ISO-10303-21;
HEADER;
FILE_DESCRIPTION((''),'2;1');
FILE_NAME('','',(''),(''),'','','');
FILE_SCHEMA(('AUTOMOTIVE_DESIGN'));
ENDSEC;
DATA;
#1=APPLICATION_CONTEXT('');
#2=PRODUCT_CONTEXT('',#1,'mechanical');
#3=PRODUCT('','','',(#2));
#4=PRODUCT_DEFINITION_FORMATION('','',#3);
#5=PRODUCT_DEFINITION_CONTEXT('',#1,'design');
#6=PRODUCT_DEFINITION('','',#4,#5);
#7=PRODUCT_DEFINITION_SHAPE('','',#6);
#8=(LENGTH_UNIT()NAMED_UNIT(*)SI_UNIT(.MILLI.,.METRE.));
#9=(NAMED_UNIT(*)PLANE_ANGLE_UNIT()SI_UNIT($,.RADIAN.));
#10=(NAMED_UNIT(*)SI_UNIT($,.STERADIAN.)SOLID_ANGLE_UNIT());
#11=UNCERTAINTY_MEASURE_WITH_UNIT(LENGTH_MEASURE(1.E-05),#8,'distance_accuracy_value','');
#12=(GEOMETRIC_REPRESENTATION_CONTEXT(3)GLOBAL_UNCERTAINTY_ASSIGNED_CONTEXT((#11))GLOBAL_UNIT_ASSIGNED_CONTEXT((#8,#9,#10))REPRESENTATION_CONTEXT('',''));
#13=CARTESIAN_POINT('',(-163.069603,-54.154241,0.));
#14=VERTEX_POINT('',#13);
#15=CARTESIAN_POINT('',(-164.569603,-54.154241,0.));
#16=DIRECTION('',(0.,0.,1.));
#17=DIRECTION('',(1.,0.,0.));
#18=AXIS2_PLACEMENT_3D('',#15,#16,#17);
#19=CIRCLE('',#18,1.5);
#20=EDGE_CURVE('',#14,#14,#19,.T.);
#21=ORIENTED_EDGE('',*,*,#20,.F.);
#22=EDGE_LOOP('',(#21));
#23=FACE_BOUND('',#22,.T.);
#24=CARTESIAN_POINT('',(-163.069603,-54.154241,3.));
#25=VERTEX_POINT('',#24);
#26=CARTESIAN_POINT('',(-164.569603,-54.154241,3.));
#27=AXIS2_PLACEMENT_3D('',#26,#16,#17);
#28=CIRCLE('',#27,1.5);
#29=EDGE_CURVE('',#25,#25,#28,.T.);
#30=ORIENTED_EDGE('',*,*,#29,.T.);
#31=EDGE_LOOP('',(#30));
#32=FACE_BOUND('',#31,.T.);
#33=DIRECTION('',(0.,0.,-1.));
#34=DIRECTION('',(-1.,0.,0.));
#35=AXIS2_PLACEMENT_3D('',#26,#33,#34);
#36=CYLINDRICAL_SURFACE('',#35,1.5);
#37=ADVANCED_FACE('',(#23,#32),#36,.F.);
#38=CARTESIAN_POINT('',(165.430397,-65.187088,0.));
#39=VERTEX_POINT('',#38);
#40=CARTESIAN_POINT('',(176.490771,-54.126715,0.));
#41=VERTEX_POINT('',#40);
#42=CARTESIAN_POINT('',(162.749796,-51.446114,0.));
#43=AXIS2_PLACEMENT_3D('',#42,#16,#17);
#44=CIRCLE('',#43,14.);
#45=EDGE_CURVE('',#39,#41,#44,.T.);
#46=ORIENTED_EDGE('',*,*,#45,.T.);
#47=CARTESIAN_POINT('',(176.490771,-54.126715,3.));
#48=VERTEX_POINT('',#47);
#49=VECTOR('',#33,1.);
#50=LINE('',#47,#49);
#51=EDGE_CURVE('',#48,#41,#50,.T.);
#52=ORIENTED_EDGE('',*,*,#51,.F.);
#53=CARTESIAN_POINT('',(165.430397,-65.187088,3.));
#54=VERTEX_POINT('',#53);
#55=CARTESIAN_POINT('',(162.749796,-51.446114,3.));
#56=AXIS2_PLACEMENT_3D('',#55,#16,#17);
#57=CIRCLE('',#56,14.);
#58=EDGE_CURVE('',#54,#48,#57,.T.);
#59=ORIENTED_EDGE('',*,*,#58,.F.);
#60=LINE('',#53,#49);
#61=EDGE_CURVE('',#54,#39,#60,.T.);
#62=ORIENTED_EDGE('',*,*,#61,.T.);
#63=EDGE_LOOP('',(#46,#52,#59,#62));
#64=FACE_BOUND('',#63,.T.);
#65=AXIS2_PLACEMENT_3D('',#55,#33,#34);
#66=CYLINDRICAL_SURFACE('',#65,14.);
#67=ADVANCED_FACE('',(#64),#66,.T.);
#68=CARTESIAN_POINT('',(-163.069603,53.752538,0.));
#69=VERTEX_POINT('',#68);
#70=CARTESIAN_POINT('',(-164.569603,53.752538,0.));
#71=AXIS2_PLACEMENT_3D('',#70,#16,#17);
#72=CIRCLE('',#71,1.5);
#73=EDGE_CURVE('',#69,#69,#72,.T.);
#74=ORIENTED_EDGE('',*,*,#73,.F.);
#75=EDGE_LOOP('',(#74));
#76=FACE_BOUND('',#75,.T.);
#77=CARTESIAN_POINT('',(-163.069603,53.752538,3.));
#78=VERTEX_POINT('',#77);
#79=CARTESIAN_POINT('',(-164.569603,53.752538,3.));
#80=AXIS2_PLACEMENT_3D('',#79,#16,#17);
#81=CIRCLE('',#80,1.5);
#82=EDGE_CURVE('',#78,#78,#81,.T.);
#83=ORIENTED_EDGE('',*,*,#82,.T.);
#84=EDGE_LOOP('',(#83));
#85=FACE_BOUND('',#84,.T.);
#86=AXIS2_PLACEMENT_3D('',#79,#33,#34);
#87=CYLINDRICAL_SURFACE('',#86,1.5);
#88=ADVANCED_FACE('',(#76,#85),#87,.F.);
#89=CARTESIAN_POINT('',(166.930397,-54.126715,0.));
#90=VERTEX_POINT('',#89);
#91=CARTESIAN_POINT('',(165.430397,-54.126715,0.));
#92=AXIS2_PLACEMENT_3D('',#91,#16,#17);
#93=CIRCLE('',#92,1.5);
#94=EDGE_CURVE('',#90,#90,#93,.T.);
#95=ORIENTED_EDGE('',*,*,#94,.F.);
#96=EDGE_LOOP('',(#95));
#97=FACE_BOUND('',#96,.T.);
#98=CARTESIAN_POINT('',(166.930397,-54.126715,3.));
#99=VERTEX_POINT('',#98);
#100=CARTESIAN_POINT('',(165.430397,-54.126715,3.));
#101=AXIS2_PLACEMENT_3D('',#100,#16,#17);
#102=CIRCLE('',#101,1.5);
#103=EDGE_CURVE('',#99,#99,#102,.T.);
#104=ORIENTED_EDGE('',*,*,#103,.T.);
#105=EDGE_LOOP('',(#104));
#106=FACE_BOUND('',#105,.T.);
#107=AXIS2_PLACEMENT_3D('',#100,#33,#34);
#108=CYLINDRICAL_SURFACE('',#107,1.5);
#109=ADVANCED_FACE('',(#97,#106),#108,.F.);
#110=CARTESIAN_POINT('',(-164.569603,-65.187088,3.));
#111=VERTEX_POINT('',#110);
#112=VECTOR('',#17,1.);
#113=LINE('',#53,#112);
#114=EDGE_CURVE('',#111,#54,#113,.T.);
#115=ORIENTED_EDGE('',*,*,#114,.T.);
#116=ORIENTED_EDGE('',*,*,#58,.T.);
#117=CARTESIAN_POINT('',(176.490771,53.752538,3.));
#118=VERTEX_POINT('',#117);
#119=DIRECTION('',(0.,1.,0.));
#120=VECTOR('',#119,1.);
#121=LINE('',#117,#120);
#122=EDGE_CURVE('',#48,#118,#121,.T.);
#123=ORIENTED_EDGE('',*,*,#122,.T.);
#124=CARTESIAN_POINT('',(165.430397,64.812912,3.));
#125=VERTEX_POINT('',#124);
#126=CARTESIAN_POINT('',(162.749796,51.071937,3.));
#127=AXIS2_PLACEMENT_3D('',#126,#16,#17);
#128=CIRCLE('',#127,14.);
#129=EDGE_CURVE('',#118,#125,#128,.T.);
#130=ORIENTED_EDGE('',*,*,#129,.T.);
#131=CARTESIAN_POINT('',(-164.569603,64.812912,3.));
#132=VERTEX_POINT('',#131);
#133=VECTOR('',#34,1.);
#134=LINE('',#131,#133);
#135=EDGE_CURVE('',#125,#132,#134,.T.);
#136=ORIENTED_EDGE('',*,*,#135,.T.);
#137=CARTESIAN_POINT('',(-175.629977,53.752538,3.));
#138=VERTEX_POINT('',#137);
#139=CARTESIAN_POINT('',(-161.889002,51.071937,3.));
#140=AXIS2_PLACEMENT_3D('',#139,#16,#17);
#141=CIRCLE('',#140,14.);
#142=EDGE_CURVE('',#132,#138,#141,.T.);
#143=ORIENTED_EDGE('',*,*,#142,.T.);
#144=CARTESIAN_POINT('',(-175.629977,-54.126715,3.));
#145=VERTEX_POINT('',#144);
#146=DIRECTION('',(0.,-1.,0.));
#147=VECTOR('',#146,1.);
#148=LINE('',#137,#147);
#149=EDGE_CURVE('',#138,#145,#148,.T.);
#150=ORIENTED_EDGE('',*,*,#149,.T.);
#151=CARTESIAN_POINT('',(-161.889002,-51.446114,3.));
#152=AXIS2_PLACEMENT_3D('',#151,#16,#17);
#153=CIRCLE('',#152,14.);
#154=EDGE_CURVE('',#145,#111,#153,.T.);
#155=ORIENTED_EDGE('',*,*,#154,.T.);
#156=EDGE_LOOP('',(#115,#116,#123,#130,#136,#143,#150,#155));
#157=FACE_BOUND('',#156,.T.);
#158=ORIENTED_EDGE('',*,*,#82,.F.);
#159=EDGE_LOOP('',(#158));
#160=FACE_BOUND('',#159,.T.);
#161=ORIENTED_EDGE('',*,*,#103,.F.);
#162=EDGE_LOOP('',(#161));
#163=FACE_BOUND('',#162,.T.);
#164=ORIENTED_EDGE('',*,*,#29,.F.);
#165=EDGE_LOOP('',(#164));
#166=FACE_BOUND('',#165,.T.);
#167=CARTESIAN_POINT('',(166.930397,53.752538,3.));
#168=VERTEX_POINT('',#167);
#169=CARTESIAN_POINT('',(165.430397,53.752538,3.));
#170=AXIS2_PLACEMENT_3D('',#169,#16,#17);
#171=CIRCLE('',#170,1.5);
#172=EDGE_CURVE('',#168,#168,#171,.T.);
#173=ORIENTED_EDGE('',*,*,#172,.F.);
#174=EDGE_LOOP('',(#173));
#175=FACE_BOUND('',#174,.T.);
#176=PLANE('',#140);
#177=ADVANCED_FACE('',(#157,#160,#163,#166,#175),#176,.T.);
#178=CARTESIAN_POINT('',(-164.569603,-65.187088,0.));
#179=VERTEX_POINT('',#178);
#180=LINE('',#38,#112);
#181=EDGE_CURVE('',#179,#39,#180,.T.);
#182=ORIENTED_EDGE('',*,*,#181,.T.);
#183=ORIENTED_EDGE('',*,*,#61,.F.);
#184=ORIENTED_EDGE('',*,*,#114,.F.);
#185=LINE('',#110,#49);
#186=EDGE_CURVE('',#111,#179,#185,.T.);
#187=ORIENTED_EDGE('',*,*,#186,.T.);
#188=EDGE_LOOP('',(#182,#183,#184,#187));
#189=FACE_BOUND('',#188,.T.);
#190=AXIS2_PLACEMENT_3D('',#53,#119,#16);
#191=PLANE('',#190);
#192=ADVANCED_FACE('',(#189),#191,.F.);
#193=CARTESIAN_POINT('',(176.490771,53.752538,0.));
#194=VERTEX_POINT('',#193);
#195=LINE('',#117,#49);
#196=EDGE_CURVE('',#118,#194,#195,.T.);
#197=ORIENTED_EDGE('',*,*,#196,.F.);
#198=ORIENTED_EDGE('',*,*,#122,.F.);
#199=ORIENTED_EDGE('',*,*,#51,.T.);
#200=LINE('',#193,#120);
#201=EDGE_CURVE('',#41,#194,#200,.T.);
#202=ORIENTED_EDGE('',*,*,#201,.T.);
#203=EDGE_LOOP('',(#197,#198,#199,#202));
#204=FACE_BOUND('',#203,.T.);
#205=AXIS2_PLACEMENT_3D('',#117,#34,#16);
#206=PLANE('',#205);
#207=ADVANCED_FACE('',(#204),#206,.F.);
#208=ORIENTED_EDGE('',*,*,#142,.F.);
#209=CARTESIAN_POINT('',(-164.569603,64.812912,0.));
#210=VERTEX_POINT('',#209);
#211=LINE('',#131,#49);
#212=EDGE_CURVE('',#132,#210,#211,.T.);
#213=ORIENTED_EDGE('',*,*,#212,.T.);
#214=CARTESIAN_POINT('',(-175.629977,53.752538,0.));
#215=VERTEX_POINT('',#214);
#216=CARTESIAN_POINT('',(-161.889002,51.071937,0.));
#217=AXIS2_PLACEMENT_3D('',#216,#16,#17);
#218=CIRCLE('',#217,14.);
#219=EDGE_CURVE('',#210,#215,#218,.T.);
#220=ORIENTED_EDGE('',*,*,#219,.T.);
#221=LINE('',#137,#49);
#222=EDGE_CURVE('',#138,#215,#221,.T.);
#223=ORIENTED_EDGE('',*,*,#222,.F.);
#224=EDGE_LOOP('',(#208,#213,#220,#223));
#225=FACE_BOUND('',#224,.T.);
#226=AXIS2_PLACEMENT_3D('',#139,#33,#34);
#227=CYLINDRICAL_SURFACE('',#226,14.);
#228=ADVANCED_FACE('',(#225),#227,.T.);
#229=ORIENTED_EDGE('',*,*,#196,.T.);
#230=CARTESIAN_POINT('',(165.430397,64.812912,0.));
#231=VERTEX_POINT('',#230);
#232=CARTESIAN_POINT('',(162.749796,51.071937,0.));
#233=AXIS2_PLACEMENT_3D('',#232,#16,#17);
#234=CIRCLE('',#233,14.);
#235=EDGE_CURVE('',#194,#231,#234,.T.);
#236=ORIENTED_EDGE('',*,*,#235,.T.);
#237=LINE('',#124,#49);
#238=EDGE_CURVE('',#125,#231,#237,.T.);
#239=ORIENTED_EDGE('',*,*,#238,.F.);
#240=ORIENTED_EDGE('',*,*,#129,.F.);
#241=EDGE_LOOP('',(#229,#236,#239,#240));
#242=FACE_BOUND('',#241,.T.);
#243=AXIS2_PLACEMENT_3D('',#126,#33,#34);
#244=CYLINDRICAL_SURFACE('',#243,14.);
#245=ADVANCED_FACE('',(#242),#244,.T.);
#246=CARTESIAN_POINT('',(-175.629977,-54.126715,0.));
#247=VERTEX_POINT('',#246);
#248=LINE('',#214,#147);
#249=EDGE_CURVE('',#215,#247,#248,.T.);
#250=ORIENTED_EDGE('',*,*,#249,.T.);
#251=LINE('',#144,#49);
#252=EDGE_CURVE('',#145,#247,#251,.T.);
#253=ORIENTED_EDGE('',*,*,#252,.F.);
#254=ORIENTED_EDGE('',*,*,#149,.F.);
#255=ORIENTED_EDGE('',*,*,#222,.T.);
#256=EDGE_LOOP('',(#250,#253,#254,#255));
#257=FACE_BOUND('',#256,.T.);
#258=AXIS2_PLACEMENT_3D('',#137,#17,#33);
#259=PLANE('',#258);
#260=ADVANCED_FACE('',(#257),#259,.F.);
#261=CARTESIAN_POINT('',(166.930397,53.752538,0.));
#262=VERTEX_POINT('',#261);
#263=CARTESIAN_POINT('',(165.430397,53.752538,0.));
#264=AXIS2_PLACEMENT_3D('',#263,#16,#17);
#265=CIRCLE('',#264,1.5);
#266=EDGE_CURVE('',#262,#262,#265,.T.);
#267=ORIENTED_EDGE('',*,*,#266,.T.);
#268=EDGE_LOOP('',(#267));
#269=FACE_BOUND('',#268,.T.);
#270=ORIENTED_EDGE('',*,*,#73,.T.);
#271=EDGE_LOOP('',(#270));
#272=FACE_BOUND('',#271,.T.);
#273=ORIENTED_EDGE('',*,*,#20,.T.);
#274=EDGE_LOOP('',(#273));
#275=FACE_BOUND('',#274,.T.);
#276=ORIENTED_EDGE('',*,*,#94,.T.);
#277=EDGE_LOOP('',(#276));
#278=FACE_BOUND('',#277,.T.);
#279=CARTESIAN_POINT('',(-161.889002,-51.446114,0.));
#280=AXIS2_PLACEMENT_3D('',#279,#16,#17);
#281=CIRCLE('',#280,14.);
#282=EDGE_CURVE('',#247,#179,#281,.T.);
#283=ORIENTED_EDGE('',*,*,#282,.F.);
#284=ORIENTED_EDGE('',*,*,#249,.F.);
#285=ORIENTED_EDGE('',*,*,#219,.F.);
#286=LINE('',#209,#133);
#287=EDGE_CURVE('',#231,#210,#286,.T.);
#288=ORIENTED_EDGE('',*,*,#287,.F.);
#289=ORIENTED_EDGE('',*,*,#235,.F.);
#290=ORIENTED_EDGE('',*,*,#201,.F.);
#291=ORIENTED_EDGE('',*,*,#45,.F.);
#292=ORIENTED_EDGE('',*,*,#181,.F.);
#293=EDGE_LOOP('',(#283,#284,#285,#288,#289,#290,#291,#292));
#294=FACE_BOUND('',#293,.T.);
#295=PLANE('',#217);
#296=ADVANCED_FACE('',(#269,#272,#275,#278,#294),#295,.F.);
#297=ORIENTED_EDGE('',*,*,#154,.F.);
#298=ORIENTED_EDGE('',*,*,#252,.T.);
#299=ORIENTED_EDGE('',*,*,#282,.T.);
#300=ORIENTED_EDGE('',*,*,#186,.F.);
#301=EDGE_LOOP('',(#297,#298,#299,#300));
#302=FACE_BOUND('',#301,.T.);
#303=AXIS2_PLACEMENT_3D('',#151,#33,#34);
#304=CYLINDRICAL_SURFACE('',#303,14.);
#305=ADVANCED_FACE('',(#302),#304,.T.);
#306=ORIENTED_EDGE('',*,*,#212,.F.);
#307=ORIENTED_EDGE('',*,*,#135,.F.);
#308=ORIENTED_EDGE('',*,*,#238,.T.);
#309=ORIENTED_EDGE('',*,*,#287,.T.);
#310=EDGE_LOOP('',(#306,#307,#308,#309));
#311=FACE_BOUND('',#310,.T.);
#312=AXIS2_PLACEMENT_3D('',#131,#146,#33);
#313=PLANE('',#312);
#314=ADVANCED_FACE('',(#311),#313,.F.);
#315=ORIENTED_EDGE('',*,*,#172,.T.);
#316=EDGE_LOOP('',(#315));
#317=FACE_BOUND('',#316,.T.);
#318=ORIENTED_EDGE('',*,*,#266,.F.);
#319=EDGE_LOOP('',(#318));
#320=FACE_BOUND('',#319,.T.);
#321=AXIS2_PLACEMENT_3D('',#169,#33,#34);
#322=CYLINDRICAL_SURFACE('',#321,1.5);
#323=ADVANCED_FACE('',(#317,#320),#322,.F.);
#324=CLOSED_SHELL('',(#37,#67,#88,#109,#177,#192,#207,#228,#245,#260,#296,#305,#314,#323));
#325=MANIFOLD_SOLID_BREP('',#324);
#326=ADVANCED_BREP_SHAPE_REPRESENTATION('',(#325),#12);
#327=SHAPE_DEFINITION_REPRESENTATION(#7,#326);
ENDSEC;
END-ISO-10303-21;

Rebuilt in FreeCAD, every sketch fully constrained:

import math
import FreeCAD as App
import Part
import Sketcher
from FreeCAD import Vector

doc = App.newDocument("Part")
body = doc.addObject("PartDesign::Body", "Body")

# Sketch on XY plane
sketch1 = body.newObject("Sketcher::SketchObject", "Sketch")
sketch1.AttachmentSupport = (doc.getObject("XY_Plane"), [""])
sketch1.MapMode = "FlatFace"
sketch1.addGeometry([
    Part.LineSegment(Vector(-175.629977, 53.752538, 0), Vector(-175.629977, -54.126715, 0)),  # 0
    Part.ArcOfCircle(Part.Circle(Vector(-161.889002, -51.446114, 0), Vector(0, 0, 1), 14), math.radians(-168.961329), math.radians(-101.038671)),  # 1
    Part.LineSegment(Vector(-164.569603, -65.187088, 0), Vector(165.430397, -65.187088, 0)),  # 2
    Part.ArcOfCircle(Part.Circle(Vector(162.749796, -51.446114, 0), Vector(0, 0, 1), 14), math.radians(-78.961329), math.radians(-11.038671)),  # 3
    Part.LineSegment(Vector(176.490771, -54.126715, 0), Vector(176.490771, 53.752538, 0)),  # 4
    Part.ArcOfCircle(Part.Circle(Vector(162.749796, 51.071937, 0), Vector(0, 0, 1), 14), math.radians(11.038671), math.radians(78.961329)),  # 5
    Part.LineSegment(Vector(165.430397, 64.812912, 0), Vector(-164.569603, 64.812912, 0)),  # 6
    Part.ArcOfCircle(Part.Circle(Vector(-161.889002, 51.071937, 0), Vector(0, 0, 1), 14), math.radians(101.038671), math.radians(168.961329)),  # 7
    Part.Circle(Vector(-164.569603, -54.154241, 0), Vector(0, 0, 1), 1.5),  # 8
    Part.Circle(Vector(165.430397, -54.126715, 0), Vector(0, 0, 1), 1.5),  # 9
    Part.Circle(Vector(-164.569603, 53.752538, 0), Vector(0, 0, 1), 1.5),  # 10
    Part.Circle(Vector(165.430397, 53.752538, 0), Vector(0, 0, 1), 1.5),  # 11
], False)
sketch1.addConstraint([
    Sketcher.Constraint("Coincident", 0, 2, 1, 1),
    Sketcher.Constraint("Coincident", 1, 2, 2, 1),
    Sketcher.Constraint("Coincident", 2, 2, 3, 1),
    Sketcher.Constraint("Coincident", 3, 2, 4, 1),
    Sketcher.Constraint("Coincident", 4, 2, 5, 1),
    Sketcher.Constraint("Coincident", 5, 2, 6, 1),
    Sketcher.Constraint("Coincident", 6, 2, 7, 1),
    Sketcher.Constraint("Coincident", 7, 2, 0, 1),
    Sketcher.Constraint("Vertical", 0),
    Sketcher.Constraint("Horizontal", 2),
    Sketcher.Constraint("Vertical", 4),
    Sketcher.Constraint("Horizontal", 6),
    Sketcher.Constraint("Equal", 1, 3),
    Sketcher.Constraint("Equal", 3, 5),
    Sketcher.Constraint("Equal", 5, 7),
    Sketcher.Constraint("Equal", 8, 9),
    Sketcher.Constraint("Equal", 9, 10),
    Sketcher.Constraint("Equal", 10, 11),
    Sketcher.Constraint("Horizontal", 1, 3, 3, 3),
    Sketcher.Constraint("Horizontal", 5, 3, 7, 3),
    Sketcher.Constraint("Horizontal", 10, 3, 11, 3),
    Sketcher.Constraint("Horizontal", 9, 3, 0, 2),
    Sketcher.Constraint("Horizontal", 0, 2, 3, 2),
    Sketcher.Constraint("Horizontal", 11, 3, 4, 2),
    Sketcher.Constraint("Horizontal", 4, 2, 7, 2),
    Sketcher.Constraint("Vertical", 3, 3, 5, 3),
    Sketcher.Constraint("Vertical", 8, 3, 10, 3),
    Sketcher.Constraint("Vertical", 9, 3, 11, 3),
    Sketcher.Constraint("Vertical", 10, 3, 1, 2),
    Sketcher.Constraint("Vertical", 11, 3, 2, 2),
    Sketcher.Constraint("Vertical", 2, 2, 5, 2),
    Sketcher.Constraint("Diameter", 8, 3.0),
    Sketcher.Constraint("Radius", 1, 14.0),
    Sketcher.Constraint("DistanceX", 2, 1, 2, 2, 330.0),
    Sketcher.Constraint("DistanceX", 1, 3, 3, 3, 324.638798),
    Sketcher.Constraint("DistanceY", 9, 3, 3, 3, 2.680601),
    Sketcher.Constraint("DistanceY", 0, 2, 0, 1, 107.879253),
    Sketcher.Constraint("DistanceY", 8, 3, -1, 1, 54.154241),
    Sketcher.Constraint("DistanceY", -1, 1, 10, 3, 53.752538),
    Sketcher.Constraint("DistanceX", -1, 1, 3, 2, 176.490771),
])
pad1 = body.newObject("PartDesign::Pad", "Pad")
pad1.Profile = sketch1
pad1.Length = 3

doc.recompute()
